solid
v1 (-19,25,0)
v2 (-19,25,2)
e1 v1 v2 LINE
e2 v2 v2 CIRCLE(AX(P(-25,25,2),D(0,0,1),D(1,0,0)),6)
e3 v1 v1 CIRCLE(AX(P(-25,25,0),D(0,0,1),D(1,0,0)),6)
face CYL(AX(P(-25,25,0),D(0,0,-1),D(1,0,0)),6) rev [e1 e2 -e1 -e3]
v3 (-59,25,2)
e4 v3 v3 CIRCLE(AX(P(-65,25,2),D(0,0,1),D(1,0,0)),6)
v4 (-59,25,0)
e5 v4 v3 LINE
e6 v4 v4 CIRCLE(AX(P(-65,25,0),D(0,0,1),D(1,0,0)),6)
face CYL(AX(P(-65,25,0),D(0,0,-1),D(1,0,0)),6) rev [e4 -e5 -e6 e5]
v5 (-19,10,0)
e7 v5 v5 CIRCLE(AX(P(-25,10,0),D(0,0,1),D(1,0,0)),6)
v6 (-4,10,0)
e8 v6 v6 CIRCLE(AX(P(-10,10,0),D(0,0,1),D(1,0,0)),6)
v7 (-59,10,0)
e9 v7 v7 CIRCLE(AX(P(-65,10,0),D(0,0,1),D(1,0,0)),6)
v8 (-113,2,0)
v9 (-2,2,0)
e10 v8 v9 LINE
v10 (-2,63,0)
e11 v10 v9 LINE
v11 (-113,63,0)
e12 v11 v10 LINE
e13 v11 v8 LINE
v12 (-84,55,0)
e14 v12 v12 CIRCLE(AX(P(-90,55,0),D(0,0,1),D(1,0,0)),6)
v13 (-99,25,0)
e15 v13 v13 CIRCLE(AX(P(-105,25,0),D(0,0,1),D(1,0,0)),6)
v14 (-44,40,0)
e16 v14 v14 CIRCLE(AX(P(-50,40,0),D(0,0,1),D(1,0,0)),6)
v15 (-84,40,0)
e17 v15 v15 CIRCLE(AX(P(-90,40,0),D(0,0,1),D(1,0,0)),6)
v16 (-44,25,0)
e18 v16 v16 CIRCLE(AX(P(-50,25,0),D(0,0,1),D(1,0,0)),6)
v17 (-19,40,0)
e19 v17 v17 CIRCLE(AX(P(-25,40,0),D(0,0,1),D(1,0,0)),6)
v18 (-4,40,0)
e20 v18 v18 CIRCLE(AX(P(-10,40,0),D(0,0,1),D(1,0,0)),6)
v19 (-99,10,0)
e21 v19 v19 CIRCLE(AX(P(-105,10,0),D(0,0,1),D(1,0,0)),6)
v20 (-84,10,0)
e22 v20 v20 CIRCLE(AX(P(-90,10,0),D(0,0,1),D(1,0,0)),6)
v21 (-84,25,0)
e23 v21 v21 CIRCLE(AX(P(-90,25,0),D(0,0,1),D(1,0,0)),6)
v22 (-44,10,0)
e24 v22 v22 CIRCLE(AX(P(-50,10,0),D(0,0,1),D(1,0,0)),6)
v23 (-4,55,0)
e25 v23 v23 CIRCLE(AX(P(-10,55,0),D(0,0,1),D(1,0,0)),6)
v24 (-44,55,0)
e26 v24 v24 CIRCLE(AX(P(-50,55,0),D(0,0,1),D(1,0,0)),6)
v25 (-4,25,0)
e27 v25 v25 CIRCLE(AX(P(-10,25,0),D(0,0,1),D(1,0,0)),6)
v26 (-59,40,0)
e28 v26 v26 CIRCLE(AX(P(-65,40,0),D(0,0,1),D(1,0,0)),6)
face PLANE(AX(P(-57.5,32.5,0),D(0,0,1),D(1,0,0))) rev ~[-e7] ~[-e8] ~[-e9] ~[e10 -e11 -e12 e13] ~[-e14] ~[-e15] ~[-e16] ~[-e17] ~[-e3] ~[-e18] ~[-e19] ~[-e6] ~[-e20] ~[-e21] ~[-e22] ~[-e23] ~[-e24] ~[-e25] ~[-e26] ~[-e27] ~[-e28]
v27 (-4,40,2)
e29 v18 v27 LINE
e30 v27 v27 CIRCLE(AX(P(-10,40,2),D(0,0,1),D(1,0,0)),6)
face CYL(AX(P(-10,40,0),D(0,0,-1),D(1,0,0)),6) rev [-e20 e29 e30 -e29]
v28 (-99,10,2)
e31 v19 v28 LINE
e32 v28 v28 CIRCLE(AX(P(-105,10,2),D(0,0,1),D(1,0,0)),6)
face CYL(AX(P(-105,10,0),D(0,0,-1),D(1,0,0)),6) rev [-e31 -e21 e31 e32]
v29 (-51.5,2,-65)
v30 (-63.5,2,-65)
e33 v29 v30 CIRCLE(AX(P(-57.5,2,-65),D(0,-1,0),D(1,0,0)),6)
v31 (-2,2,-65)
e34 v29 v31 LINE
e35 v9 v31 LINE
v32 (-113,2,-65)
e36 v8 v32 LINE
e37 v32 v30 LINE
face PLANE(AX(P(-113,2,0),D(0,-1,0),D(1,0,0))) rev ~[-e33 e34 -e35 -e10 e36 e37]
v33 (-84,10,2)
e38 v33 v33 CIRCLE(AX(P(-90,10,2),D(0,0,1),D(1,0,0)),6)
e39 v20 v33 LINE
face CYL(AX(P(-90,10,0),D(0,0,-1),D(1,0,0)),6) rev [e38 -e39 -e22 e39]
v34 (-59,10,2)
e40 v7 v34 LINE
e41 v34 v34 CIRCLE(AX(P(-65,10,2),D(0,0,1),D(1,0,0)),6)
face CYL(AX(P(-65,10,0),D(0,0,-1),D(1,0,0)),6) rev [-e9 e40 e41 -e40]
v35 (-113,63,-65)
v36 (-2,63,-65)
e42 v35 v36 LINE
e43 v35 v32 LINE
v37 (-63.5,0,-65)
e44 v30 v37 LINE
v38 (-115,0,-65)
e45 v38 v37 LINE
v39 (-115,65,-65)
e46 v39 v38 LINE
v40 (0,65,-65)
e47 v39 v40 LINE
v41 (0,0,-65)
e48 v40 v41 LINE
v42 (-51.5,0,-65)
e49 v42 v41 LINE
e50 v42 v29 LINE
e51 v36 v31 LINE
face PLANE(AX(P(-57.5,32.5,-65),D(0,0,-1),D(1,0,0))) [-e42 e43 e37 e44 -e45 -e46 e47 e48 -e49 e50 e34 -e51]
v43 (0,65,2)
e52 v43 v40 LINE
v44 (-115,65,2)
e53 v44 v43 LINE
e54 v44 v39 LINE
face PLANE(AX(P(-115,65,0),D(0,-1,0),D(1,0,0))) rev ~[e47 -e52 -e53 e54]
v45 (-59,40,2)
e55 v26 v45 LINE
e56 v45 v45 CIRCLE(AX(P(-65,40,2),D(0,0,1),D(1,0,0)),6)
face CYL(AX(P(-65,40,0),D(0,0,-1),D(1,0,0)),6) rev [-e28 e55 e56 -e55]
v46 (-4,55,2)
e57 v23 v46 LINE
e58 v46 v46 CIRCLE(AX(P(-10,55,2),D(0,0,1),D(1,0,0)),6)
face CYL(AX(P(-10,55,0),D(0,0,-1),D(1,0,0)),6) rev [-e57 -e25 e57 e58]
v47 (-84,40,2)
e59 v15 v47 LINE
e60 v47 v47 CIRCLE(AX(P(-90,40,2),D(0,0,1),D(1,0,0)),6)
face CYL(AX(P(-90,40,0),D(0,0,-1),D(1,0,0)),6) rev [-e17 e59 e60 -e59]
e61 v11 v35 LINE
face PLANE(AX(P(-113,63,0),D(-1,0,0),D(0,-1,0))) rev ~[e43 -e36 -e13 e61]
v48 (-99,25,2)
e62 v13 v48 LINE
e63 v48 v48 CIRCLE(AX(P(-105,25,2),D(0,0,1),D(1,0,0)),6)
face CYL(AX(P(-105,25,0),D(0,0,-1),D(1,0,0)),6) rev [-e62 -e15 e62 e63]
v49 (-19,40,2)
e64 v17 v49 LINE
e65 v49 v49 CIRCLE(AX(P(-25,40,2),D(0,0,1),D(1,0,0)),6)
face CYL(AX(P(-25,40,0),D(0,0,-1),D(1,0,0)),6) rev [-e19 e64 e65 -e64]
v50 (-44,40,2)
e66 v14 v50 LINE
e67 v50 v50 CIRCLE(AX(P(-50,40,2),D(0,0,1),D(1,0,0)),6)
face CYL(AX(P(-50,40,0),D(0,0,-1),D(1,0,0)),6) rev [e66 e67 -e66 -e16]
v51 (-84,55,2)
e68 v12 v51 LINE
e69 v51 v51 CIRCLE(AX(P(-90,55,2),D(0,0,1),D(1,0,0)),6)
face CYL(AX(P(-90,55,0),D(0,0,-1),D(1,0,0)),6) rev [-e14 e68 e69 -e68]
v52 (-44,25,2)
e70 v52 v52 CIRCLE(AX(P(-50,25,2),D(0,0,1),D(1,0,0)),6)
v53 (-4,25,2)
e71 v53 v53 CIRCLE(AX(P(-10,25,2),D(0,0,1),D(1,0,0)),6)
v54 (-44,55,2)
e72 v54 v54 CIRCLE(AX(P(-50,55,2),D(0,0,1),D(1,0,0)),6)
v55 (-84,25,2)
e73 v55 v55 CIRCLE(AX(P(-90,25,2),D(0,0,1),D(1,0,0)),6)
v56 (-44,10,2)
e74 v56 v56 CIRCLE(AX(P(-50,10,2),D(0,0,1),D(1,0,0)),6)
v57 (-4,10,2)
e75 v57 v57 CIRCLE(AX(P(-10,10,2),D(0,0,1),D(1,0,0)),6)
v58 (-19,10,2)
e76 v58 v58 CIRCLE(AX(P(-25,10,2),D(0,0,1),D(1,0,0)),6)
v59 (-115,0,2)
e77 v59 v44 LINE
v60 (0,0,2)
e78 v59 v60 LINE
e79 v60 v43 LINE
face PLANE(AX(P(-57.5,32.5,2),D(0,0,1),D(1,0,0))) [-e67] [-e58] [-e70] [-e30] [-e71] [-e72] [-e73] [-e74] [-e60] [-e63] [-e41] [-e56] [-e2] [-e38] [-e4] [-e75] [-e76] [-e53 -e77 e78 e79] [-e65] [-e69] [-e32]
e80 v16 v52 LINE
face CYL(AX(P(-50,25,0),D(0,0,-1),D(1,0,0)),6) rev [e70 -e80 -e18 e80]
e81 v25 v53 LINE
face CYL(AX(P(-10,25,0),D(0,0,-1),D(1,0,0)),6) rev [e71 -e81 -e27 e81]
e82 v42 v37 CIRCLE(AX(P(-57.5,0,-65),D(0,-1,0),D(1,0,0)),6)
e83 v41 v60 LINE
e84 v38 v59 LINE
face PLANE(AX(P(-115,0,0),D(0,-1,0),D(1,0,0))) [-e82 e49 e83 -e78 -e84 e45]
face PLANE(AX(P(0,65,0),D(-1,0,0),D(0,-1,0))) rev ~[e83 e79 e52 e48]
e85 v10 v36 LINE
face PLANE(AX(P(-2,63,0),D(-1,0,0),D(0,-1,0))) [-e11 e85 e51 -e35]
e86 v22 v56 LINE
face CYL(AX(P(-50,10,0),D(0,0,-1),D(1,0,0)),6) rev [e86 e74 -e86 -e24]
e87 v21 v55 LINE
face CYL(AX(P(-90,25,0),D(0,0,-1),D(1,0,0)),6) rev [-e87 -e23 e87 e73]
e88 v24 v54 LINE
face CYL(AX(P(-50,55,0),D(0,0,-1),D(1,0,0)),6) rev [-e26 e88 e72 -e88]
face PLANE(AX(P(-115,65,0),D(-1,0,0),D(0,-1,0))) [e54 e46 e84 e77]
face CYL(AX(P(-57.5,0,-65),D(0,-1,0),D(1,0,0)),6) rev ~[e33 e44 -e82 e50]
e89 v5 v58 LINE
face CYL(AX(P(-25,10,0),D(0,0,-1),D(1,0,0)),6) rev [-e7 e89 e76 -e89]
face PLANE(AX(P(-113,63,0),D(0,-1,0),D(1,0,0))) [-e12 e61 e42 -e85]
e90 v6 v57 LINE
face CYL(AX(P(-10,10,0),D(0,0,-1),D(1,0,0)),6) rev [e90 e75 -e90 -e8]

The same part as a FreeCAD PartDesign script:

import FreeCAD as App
import Part
import Sketcher
from FreeCAD import Vector


def add_polygon(sketch, points):
    """Adds a closed chain of lines whose ends are joined by coincident constraints."""
    first, n = sketch.GeometryCount, len(points)
    for a, b in zip(points, points[1:] + points[:1]):
        sketch.addGeometry(Part.LineSegment(App.Vector(*a, 0), App.Vector(*b, 0)), False)
    for i in range(n):
        sketch.addConstraint(Sketcher.Constraint("Coincident", first + i, 2, first + (i + 1) % n, 1))

doc = App.newDocument("Part")
body = doc.addObject("PartDesign::Body", "Body")

sketch1 = body.newObject("Sketcher::SketchObject", "Sketch")
sketch1.AttachmentSupport = (doc.getObject("XY_Plane"), [""])
sketch1.MapMode = "FlatFace"
add_polygon(sketch1, [(-115, 65), (-115, 0), (0, 0), (0, 65)])
sketch1.addGeometry(Part.Circle(Vector(-105, 10, 0), Vector(0, 0, 1), 6), False)
sketch1.addGeometry(Part.Circle(Vector(-90, 10, 0), Vector(0, 0, 1), 6), False)
sketch1.addGeometry(Part.Circle(Vector(-65, 10, 0), Vector(0, 0, 1), 6), False)
sketch1.addGeometry(Part.Circle(Vector(-105, 25, 0), Vector(0, 0, 1), 6), False)
sketch1.addGeometry(Part.Circle(Vector(-90, 25, 0), Vector(0, 0, 1), 6), False)
sketch1.addGeometry(Part.Circle(Vector(-65, 25, 0), Vector(0, 0, 1), 6), False)
sketch1.addGeometry(Part.Circle(Vector(-50, 10, 0), Vector(0, 0, 1), 6), False)
sketch1.addGeometry(Part.Circle(Vector(-25, 10, 0), Vector(0, 0, 1), 6), False)
sketch1.addGeometry(Part.Circle(Vector(-10, 10, 0), Vector(0, 0, 1), 6), False)
sketch1.addGeometry(Part.Circle(Vector(-50, 25, 0), Vector(0, 0, 1), 6), False)
sketch1.addGeometry(Part.Circle(Vector(-25, 25, 0), Vector(0, 0, 1), 6), False)
sketch1.addGeometry(Part.Circle(Vector(-10, 25, 0), Vector(0, 0, 1), 6), False)
sketch1.addGeometry(Part.Circle(Vector(-90, 40, 0), Vector(0, 0, 1), 6), False)
sketch1.addGeometry(Part.Circle(Vector(-65, 40, 0), Vector(0, 0, 1), 6), False)
sketch1.addGeometry(Part.Circle(Vector(-90, 55, 0), Vector(0, 0, 1), 6), False)
sketch1.addGeometry(Part.Circle(Vector(-50, 40, 0), Vector(0, 0, 1), 6), False)
sketch1.addGeometry(Part.Circle(Vector(-25, 40, 0), Vector(0, 0, 1), 6), False)
sketch1.addGeometry(Part.Circle(Vector(-10, 40, 0), Vector(0, 0, 1), 6), False)
sketch1.addGeometry(Part.Circle(Vector(-50, 55, 0), Vector(0, 0, 1), 6), False)
sketch1.addGeometry(Part.Circle(Vector(-10, 55, 0), Vector(0, 0, 1), 6), False)
sketch1.addConstraint(Sketcher.Constraint("Vertical", 0))
sketch1.addConstraint(Sketcher.Constraint("Horizontal", 1))
sketch1.addConstraint(Sketcher.Constraint("Vertical", 2))
sketch1.addConstraint(Sketcher.Constraint("Horizontal", 3))
sketch1.addConstraint(Sketcher.Constraint("Coincident", 1, 2, -1, 1))
sketch1.addConstraint(Sketcher.Constraint("Equal", 4, 5))
sketch1.addConstraint(Sketcher.Constraint("Equal", 5, 6))
sketch1.addConstraint(Sketcher.Constraint("Equal", 6, 7))
sketch1.addConstraint(Sketcher.Constraint("Equal", 7, 8))
sketch1.addConstraint(Sketcher.Constraint("Equal", 8, 9))
sketch1.addConstraint(Sketcher.Constraint("Equal", 9, 10))
sketch1.addConstraint(Sketcher.Constraint("Equal", 10, 11))
sketch1.addConstraint(Sketcher.Constraint("Equal", 11, 12))
sketch1.addConstraint(Sketcher.Constraint("Equal", 12, 13))
sketch1.addConstraint(Sketcher.Constraint("Equal", 13, 14))
sketch1.addConstraint(Sketcher.Constraint("Equal", 14, 15))
sketch1.addConstraint(Sketcher.Constraint("Equal", 15, 16))
sketch1.addConstraint(Sketcher.Constraint("Equal", 16, 17))
sketch1.addConstraint(Sketcher.Constraint("Equal", 17, 18))
sketch1.addConstraint(Sketcher.Constraint("Equal", 18, 19))
sketch1.addConstraint(Sketcher.Constraint("Equal", 19, 20))
sketch1.addConstraint(Sketcher.Constraint("Equal", 20, 21))
sketch1.addConstraint(Sketcher.Constraint("Equal", 21, 22))
sketch1.addConstraint(Sketcher.Constraint("Equal", 22, 23))
sketch1.addConstraint(Sketcher.Constraint("Horizontal", 4, 3, 5, 3))
sketch1.addConstraint(Sketcher.Constraint("Horizontal", 5, 3, 6, 3))
sketch1.addConstraint(Sketcher.Constraint("Horizontal", 7, 3, 8, 3))
sketch1.addConstraint(Sketcher.Constraint("Horizontal", 8, 3, 9, 3))
sketch1.addConstraint(Sketcher.Constraint("Horizontal", 6, 3, 10, 3))
sketch1.addConstraint(Sketcher.Constraint("Horizontal", 10, 3, 11, 3))
sketch1.addConstraint(Sketcher.Constraint("Horizontal", 11, 3, 12, 3))
sketch1.addConstraint(Sketcher.Constraint("Horizontal", 9, 3, 13, 3))
sketch1.addConstraint(Sketcher.Constraint("Horizontal", 13, 3, 14, 3))
sketch1.addConstraint(Sketcher.Constraint("Horizontal", 14, 3, 15, 3))
sketch1.addConstraint(Sketcher.Constraint("Horizontal", 16, 3, 17, 3))
sketch1.addConstraint(Sketcher.Constraint("Horizontal", 17, 3, 19, 3))
sketch1.addConstraint(Sketcher.Constraint("Horizontal", 19, 3, 20, 3))
sketch1.addConstraint(Sketcher.Constraint("Horizontal", 20, 3, 21, 3))
sketch1.addConstraint(Sketcher.Constraint("Horizontal", 18, 3, 22, 3))
sketch1.addConstraint(Sketcher.Constraint("Horizontal", 22, 3, 23, 3))
sketch1.addConstraint(Sketcher.Constraint("Vertical", 4, 3, 7, 3))
sketch1.addConstraint(Sketcher.Constraint("Vertical", 5, 3, 8, 3))
sketch1.addConstraint(Sketcher.Constraint("Vertical", 6, 3, 9, 3))
sketch1.addConstraint(Sketcher.Constraint("Vertical", 10, 3, 13, 3))
sketch1.addConstraint(Sketcher.Constraint("Vertical", 11, 3, 14, 3))
sketch1.addConstraint(Sketcher.Constraint("Vertical", 12, 3, 15, 3))
sketch1.addConstraint(Sketcher.Constraint("Vertical", 8, 3, 16, 3))
sketch1.addConstraint(Sketcher.Constraint("Vertical", 9, 3, 17, 3))
sketch1.addConstraint(Sketcher.Constraint("Vertical", 16, 3, 18, 3))
sketch1.addConstraint(Sketcher.Constraint("Vertical", 13, 3, 19, 3))
sketch1.addConstraint(Sketcher.Constraint("Vertical", 14, 3, 20, 3))
sketch1.addConstraint(Sketcher.Constraint("Vertical", 15, 3, 21, 3))
sketch1.addConstraint(Sketcher.Constraint("Vertical", 19, 3, 22, 3))
sketch1.addConstraint(Sketcher.Constraint("Vertical", 21, 3, 23, 3))
sketch1.addConstraint(Sketcher.Constraint("Diameter", 4, 12.0))
sketch1.addConstraint(Sketcher.Constraint("DistanceX", 1, 1, 1, 2, 115.0))
sketch1.addConstraint(Sketcher.Constraint("DistanceY", 0, 2, 0, 1, 65.0))
sketch1.addConstraint(Sketcher.Constraint("DistanceX", 4, 3, -1, 1, 105.0))
sketch1.addConstraint(Sketcher.Constraint("DistanceY", -1, 1, 4, 3, 10.0))
sketch1.addConstraint(Sketcher.Constraint("DistanceX", 5, 3, -1, 1, 90.0))
sketch1.addConstraint(Sketcher.Constraint("DistanceX", 6, 3, -1, 1, 65.0))
sketch1.addConstraint(Sketcher.Constraint("DistanceY", -1, 1, 7, 3, 25.0))
sketch1.addConstraint(Sketcher.Constraint("DistanceX", 10, 3, -1, 1, 50.0))
sketch1.addConstraint(Sketcher.Constraint("DistanceX", 11, 3, -1, 1, 25.0))
sketch1.addConstraint(Sketcher.Constraint("DistanceX", 12, 3, -1, 1, 10.0))
sketch1.addConstraint(Sketcher.Constraint("DistanceY", -1, 1, 16, 3, 40.0))
sketch1.addConstraint(Sketcher.Constraint("DistanceY", -1, 1, 18, 3, 55.0))
pad1 = body.newObject("PartDesign::Pad", "Pad")
pad1.Profile = sketch1
pad1.Length = 2

sketch2 = body.newObject("Sketcher::SketchObject", "Sketch001")
sketch2.AttachmentSupport = (doc.getObject("XY_Plane"), [""])
sketch2.MapMode = "FlatFace"
add_polygon(sketch2, [(-115, 0), (-115, 65), (0, 65), (0, 0)])
add_polygon(sketch2, [(-2, 63), (-113, 63), (-113, 2), (-2, 2)])
sketch2.addConstraint(Sketcher.Constraint("Vertical", 0))
sketch2.addConstraint(Sketcher.Constraint("Horizontal", 1))
sketch2.addConstraint(Sketcher.Constraint("Vertical", 2))
sketch2.addConstraint(Sketcher.Constraint("Horizontal", 3))
sketch2.addConstraint(Sketcher.Constraint("Horizontal", 4))
sketch2.addConstraint(Sketcher.Constraint("Vertical", 5))
sketch2.addConstraint(Sketcher.Constraint("Horizontal", 6))
sketch2.addConstraint(Sketcher.Constraint("Vertical", 7))
sketch2.addConstraint(Sketcher.Constraint("Coincident", 2, 2, -1, 1))
sketch2.addConstraint(Sketcher.Constraint("DistanceX", 1, 1, 1, 2, 115.0))
sketch2.addConstraint(Sketcher.Constraint("DistanceX", 4, 2, 4, 1, 111.0))
sketch2.addConstraint(Sketcher.Constraint("DistanceY", 0, 1, 0, 2, 65.0))
sketch2.addConstraint(Sketcher.Constraint("DistanceY", 5, 2, 5, 1, 61.0))
sketch2.addConstraint(Sketcher.Constraint("DistanceX", 4, 2, -1, 1, 113.0))
sketch2.addConstraint(Sketcher.Constraint("DistanceY", -1, 1, 4, 2, 63.0))
pad2 = body.newObject("PartDesign::Pad", "Pad001")
pad2.Profile = sketch2
pad2.Length = 65
pad2.Reversed = True

sketch3 = body.newObject("Sketcher::SketchObject", "Sketch002")
sketch3.AttachmentSupport = (doc.getObject("XZ_Plane"), [""])
sketch3.MapMode = "FlatFace"
sketch3.addGeometry(Part.Circle(Vector(-57.5, -65, 0), Vector(0, 0, 1), 6), False)
sketch3.addConstraint(Sketcher.Constraint("Diameter", 0, 12.0))
sketch3.addConstraint(Sketcher.Constraint("DistanceY", 0, 3, -1, 1, 65.0))
sketch3.addConstraint(Sketcher.Constraint("DistanceX", 0, 3, -1, 1, 57.5))
pocket1 = body.newObject("PartDesign::Pocket", "Pocket")
pocket1.Profile = sketch3
pocket1.Length = 2

doc.recompute()
